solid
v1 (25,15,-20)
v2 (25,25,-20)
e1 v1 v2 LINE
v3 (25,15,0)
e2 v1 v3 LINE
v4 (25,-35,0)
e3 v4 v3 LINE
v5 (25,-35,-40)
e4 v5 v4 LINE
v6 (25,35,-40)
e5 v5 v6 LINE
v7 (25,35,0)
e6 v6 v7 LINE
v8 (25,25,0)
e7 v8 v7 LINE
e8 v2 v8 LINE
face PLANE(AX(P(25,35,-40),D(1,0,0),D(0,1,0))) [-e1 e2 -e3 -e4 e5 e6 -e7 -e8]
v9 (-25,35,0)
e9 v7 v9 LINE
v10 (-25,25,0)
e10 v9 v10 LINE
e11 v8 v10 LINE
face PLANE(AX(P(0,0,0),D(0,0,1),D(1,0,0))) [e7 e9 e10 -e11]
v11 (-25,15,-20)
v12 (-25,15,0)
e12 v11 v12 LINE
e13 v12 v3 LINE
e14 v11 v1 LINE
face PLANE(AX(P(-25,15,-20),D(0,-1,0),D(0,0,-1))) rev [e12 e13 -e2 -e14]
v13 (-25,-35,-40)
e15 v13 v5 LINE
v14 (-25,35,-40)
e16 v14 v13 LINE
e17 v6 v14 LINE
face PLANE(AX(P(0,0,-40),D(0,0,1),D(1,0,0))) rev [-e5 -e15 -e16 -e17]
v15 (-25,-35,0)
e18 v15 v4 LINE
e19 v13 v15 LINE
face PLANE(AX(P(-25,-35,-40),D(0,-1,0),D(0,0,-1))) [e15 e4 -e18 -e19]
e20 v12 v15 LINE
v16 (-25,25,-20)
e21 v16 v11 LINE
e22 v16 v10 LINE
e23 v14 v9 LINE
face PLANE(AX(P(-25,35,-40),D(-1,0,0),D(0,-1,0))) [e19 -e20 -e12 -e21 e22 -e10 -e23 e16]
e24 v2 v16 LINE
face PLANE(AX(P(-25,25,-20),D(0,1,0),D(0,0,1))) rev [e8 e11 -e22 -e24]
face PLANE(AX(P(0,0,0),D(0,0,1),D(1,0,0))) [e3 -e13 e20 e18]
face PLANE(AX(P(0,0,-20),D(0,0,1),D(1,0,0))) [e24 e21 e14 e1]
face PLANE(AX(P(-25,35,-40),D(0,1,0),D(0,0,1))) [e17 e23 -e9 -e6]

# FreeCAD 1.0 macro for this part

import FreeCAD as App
import Part
import Sketcher
from FreeCAD import Vector


def add_polygon(sketch, points):
    """Adds a closed chain of lines whose ends are joined by coincident constraints."""
    first, n = sketch.GeometryCount, len(points)
    for a, b in zip(points, points[1:] + points[:1]):
        sketch.addGeometry(Part.LineSegment(App.Vector(*a, 0), App.Vector(*b, 0)), False)
    for i in range(n):
        sketch.addConstraint(Sketcher.Constraint("Coincident", first + i, 2, first + (i + 1) % n, 1))

doc = App.newDocument("Part")
body = doc.addObject("PartDesign::Body", "Body")

sketch1 = doc.addObject("Sketcher::SketchObject", "Sketch")
body.addObject(sketch1)
sketch1.AttachmentSupport = (doc.XY_Plane, [""])
sketch1.MapMode = "FlatFace"
add_polygon(sketch1, [(-25, 35), (-25, -35), (25, -35), (25, 35)])
sketch1.addConstraint([
    Sketcher.Constraint("Vertical", 0),
    Sketcher.Constraint("Horizontal", 1),
    Sketcher.Constraint("Vertical", 2),
    Sketcher.Constraint("Horizontal", 3),
    Sketcher.Constraint("Symmetric", 0, 2, 2, 2, -1, 1),
    Sketcher.Constraint("DistanceX", 1, 1, 1, 2, 50.0),
    Sketcher.Constraint("DistanceY", 0, 2, 0, 1, 70.0),
])
pad1 = doc.addObject("PartDesign::Pad", "Pad")
body.addObject(pad1)
pad1.Profile = sketch1
pad1.Length = 40
pad1.Reversed = True

sketch2 = doc.addObject("Sketcher::SketchObject", "Sketch001")
body.addObject(sketch2)
sketch2.AttachmentSupport = (doc.XY_Plane, [""])
sketch2.MapMode = "FlatFace"
add_polygon(sketch2, [(-25, 25), (-25, 15), (25, 15), (25, 25)])
sketch2.addConstraint([
    Sketcher.Constraint("Vertical", 0),
    Sketcher.Constraint("Horizontal", 1),
    Sketcher.Constraint("Vertical", 2),
    Sketcher.Constraint("Horizontal", 3),
    Sketcher.Constraint("DistanceX", 1, 1, 1, 2, 50.0),
    Sketcher.Constraint("DistanceY", 0, 2, 0, 1, 10.0),
    Sketcher.Constraint("DistanceX", 0, 2, -1, 1, 25.0),
    Sketcher.Constraint("DistanceY", -1, 1, 0, 2, 15.0),
])
pocket1 = doc.addObject("PartDesign::Pocket", "Pocket")
body.addObject(pocket1)
pocket1.Profile = sketch2
pocket1.Length = 20

doc.recompute()
